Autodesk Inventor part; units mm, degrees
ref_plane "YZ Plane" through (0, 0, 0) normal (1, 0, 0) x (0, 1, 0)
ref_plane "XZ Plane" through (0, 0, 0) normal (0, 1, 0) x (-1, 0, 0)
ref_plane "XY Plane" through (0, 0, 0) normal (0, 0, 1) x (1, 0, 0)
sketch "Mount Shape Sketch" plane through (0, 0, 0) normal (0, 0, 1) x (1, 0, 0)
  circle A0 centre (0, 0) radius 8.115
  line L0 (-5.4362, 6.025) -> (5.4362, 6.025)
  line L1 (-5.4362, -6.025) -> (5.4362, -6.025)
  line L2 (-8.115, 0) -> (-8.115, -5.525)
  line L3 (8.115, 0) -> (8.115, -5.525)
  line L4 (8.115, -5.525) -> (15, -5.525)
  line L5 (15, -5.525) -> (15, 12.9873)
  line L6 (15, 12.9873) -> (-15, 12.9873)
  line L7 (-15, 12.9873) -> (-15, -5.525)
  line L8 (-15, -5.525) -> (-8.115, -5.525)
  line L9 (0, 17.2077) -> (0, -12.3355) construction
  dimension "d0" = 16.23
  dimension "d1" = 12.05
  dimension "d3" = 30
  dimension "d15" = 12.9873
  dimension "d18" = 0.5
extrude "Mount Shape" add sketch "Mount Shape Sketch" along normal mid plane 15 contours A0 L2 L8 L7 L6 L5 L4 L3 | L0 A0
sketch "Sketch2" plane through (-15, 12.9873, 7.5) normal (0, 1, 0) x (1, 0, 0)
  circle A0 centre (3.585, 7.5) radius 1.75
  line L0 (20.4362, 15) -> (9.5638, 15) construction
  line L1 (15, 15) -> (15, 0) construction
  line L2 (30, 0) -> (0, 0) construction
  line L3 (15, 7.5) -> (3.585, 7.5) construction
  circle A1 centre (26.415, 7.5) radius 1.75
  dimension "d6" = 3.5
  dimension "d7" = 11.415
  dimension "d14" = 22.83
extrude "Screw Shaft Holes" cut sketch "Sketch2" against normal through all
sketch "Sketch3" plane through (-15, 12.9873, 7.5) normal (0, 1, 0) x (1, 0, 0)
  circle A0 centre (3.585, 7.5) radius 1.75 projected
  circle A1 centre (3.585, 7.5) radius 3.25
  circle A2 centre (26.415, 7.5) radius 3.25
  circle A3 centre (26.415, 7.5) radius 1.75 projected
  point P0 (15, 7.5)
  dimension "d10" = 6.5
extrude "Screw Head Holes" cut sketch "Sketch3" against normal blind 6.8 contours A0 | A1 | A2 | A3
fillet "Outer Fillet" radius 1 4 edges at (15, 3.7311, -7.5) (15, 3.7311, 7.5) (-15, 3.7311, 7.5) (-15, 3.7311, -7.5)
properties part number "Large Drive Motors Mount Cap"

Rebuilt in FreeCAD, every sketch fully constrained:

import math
import FreeCAD as App
import Part
import Sketcher
Q = App.Units.Quantity


def edges_at(feature, points):
    """Names of the edges that pass closest to the given points."""
    edges = feature.Shape.Edges
    near = lambda p: min(range(len(edges)), key=lambda i: edges[i].distToShape(Part.Vertex(*p))[0])
    return sorted({f"Edge{near(p) + 1}" for p in points})

doc = App.newDocument("Part")
body = doc.addObject("PartDesign::Body", "Body")

# Sketch on XY plane
sketch1 = body.newObject("Sketcher::SketchObject", "Sketch")
sketch1.AttachmentSupport = (doc.getObject("XY_Plane"), [""])
sketch1.MapMode = "FlatFace"
sketch1.addGeometry(Part.ArcOfCircle(Part.Circle(App.Vector(0, 0, 0), App.Vector(0, 0, 1), 8), math.radians(0), math.radians(48)), False)
sketch1.addGeometry(Part.LineSegment(App.Vector(8, 0, 0), App.Vector(8, -6, 0)), False)
sketch1.addGeometry(Part.LineSegment(App.Vector(8, -6, 0), App.Vector(15, -6, 0)), False)
sketch1.addGeometry(Part.LineSegment(App.Vector(15, -6, 0), App.Vector(15, 13, 0)), False)
sketch1.addGeometry(Part.LineSegment(App.Vector(15, 13, 0), App.Vector(-15, 13, 0)), False)
sketch1.addGeometry(Part.LineSegment(App.Vector(-15, 13, 0), App.Vector(-15, -6, 0)), False)
sketch1.addGeometry(Part.LineSegment(App.Vector(-15, -6, 0), App.Vector(-8, -6, 0)), False)
sketch1.addGeometry(Part.LineSegment(App.Vector(-8, -6, 0), App.Vector(-8, 0, 0)), False)
sketch1.addGeometry(Part.ArcOfCircle(Part.Circle(App.Vector(0, 0, 0), App.Vector(0, 0, 1), 8), math.radians(132), math.radians(180)), False)
sketch1.addGeometry(Part.LineSegment(App.Vector(-5, 6, 0), App.Vector(5, 6, 0)), False)
sketch1.addConstraint(Sketcher.Constraint("Tangent", 0, 1, 1, 1))
sketch1.addConstraint(Sketcher.Constraint("Coincident", 1, 2, 2, 1))
sketch1.addConstraint(Sketcher.Constraint("Coincident", 2, 2, 3, 1))
sketch1.addConstraint(Sketcher.Constraint("Coincident", 3, 2, 4, 1))
sketch1.addConstraint(Sketcher.Constraint("Coincident", 4, 2, 5, 1))
sketch1.addConstraint(Sketcher.Constraint("Coincident", 5, 2, 6, 1))
sketch1.addConstraint(Sketcher.Constraint("Coincident", 6, 2, 7, 1))
sketch1.addConstraint(Sketcher.Constraint("Tangent", 7, 2, 8, 2))
sketch1.addConstraint(Sketcher.Constraint("Coincident", 8, 1, 9, 1))
sketch1.addConstraint(Sketcher.Constraint("Coincident", 9, 2, 0, 2))
sketch1.addConstraint(Sketcher.Constraint("Vertical", 1))
sketch1.addConstraint(Sketcher.Constraint("Horizontal", 2))
sketch1.addConstraint(Sketcher.Constraint("Vertical", 3))
sketch1.addConstraint(Sketcher.Constraint("Horizontal", 4))
sketch1.addConstraint(Sketcher.Constraint("Vertical", 5))
sketch1.addConstraint(Sketcher.Constraint("Horizontal", 6))
sketch1.addConstraint(Sketcher.Constraint("Vertical", 7))
sketch1.addConstraint(Sketcher.Constraint("Horizontal", 9))
sketch1.addConstraint(Sketcher.Constraint("Coincident", 0, 3, -1, 1))
sketch1.addConstraint(Sketcher.Constraint("Coincident", 8, 3, -1, 1))
sketch1.addConstraint(Sketcher.Constraint("Equal", 0, 8))
sketch1.addConstraint(Sketcher.Constraint("Symmetric", 2, 2, 5, 2, -2))
sketch1.addConstraint(Sketcher.Constraint("DistanceX", 4, 2, 4, 1, Q("30 mm")))
sketch1.addConstraint(Sketcher.Constraint("Radius", 0, Q("8.115 mm")))
sketch1.addConstraint(Sketcher.Constraint("DistanceY", -1, 1, 3, 2, Q("12.9873 mm")))
sketch1.addConstraint(Sketcher.Constraint("DistanceY", 1, 2, 1, 1, Q("5.525 mm")))
sketch1.addConstraint(Sketcher.Constraint("DistanceY", 6, 2, 8, 1, Q("11.55 mm")))
pad1 = body.newObject("PartDesign::Pad", "Pad")
pad1.Profile = sketch1
pad1.Length = 15
pad1.Midplane = True

# Sketch on XZ plane
sketch2 = body.newObject("Sketcher::SketchObject", "Sketch001")
sketch2.AttachmentSupport = (doc.getObject("XZ_Plane"), [""])
sketch2.MapMode = "FlatFace"
sketch2.AttachmentOffset = App.Placement(App.Vector(0, 0, -12.9873), App.Rotation())
sketch2.addGeometry(Part.Circle(App.Vector(-11.4, 0, 0), App.Vector(0, 0, 1), 1.8), False)
sketch2.addGeometry(Part.Circle(App.Vector(11.4, 0, 0), App.Vector(0, 0, 1), 1.8), False)
sketch2.addConstraint(Sketcher.Constraint("Equal", 0, 1))
sketch2.addConstraint(Sketcher.Constraint("Symmetric", 0, 3, 1, 3, -1, 1))
sketch2.addConstraint(Sketcher.Constraint("PointOnObject", 0, 3, -1))
sketch2.addConstraint(Sketcher.Constraint("Diameter", 0, Q("3.5 mm")))
sketch2.addConstraint(Sketcher.Constraint("DistanceX", 0, 3, 1, 3, Q("22.83 mm")))
pocket1 = body.newObject("PartDesign::Pocket", "Pocket")
pocket1.Profile = sketch2
pocket1.Type = "ThroughAll"
pocket1.Reversed = True

# Sketch on XZ plane
sketch3 = body.newObject("Sketcher::SketchObject", "Sketch002")
sketch3.AttachmentSupport = (doc.getObject("XZ_Plane"), [""])
sketch3.MapMode = "FlatFace"
sketch3.AttachmentOffset = App.Placement(App.Vector(0, 0, -12.9873), App.Rotation())
sketch3.addGeometry(Part.Circle(App.Vector(-11.4, 0, 0), App.Vector(0, 0, 1), 3.2), False)
sketch3.addGeometry(Part.Circle(App.Vector(11.4, 0, 0), App.Vector(0, 0, 1), 3.2), False)
sketch3.addConstraint(Sketcher.Constraint("Equal", 0, 1))
sketch3.addConstraint(Sketcher.Constraint("Symmetric", 0, 3, 1, 3, -1, 1))
sketch3.addConstraint(Sketcher.Constraint("PointOnObject", 0, 3, -1))
sketch3.addConstraint(Sketcher.Constraint("Diameter", 0, Q("6.5 mm")))
sketch3.addConstraint(Sketcher.Constraint("DistanceX", 0, 3, 1, 3, Q("22.83 mm")))
pocket2 = body.newObject("PartDesign::Pocket", "Pocket001")
pocket2.Profile = sketch3
pocket2.Length = 6.8
pocket2.Reversed = True
doc.recompute()

fillet = body.newObject("PartDesign::Fillet", "Fillet")
fillet.Base = (pocket2, edges_at(pocket2, [
    (15, 3.731, -7.5),
    (15, 3.731, 7.5),
    (-15, 3.731, 7.5),
    (-15, 3.731, -7.5),
]))
fillet.Radius = 1

doc.recompute()
